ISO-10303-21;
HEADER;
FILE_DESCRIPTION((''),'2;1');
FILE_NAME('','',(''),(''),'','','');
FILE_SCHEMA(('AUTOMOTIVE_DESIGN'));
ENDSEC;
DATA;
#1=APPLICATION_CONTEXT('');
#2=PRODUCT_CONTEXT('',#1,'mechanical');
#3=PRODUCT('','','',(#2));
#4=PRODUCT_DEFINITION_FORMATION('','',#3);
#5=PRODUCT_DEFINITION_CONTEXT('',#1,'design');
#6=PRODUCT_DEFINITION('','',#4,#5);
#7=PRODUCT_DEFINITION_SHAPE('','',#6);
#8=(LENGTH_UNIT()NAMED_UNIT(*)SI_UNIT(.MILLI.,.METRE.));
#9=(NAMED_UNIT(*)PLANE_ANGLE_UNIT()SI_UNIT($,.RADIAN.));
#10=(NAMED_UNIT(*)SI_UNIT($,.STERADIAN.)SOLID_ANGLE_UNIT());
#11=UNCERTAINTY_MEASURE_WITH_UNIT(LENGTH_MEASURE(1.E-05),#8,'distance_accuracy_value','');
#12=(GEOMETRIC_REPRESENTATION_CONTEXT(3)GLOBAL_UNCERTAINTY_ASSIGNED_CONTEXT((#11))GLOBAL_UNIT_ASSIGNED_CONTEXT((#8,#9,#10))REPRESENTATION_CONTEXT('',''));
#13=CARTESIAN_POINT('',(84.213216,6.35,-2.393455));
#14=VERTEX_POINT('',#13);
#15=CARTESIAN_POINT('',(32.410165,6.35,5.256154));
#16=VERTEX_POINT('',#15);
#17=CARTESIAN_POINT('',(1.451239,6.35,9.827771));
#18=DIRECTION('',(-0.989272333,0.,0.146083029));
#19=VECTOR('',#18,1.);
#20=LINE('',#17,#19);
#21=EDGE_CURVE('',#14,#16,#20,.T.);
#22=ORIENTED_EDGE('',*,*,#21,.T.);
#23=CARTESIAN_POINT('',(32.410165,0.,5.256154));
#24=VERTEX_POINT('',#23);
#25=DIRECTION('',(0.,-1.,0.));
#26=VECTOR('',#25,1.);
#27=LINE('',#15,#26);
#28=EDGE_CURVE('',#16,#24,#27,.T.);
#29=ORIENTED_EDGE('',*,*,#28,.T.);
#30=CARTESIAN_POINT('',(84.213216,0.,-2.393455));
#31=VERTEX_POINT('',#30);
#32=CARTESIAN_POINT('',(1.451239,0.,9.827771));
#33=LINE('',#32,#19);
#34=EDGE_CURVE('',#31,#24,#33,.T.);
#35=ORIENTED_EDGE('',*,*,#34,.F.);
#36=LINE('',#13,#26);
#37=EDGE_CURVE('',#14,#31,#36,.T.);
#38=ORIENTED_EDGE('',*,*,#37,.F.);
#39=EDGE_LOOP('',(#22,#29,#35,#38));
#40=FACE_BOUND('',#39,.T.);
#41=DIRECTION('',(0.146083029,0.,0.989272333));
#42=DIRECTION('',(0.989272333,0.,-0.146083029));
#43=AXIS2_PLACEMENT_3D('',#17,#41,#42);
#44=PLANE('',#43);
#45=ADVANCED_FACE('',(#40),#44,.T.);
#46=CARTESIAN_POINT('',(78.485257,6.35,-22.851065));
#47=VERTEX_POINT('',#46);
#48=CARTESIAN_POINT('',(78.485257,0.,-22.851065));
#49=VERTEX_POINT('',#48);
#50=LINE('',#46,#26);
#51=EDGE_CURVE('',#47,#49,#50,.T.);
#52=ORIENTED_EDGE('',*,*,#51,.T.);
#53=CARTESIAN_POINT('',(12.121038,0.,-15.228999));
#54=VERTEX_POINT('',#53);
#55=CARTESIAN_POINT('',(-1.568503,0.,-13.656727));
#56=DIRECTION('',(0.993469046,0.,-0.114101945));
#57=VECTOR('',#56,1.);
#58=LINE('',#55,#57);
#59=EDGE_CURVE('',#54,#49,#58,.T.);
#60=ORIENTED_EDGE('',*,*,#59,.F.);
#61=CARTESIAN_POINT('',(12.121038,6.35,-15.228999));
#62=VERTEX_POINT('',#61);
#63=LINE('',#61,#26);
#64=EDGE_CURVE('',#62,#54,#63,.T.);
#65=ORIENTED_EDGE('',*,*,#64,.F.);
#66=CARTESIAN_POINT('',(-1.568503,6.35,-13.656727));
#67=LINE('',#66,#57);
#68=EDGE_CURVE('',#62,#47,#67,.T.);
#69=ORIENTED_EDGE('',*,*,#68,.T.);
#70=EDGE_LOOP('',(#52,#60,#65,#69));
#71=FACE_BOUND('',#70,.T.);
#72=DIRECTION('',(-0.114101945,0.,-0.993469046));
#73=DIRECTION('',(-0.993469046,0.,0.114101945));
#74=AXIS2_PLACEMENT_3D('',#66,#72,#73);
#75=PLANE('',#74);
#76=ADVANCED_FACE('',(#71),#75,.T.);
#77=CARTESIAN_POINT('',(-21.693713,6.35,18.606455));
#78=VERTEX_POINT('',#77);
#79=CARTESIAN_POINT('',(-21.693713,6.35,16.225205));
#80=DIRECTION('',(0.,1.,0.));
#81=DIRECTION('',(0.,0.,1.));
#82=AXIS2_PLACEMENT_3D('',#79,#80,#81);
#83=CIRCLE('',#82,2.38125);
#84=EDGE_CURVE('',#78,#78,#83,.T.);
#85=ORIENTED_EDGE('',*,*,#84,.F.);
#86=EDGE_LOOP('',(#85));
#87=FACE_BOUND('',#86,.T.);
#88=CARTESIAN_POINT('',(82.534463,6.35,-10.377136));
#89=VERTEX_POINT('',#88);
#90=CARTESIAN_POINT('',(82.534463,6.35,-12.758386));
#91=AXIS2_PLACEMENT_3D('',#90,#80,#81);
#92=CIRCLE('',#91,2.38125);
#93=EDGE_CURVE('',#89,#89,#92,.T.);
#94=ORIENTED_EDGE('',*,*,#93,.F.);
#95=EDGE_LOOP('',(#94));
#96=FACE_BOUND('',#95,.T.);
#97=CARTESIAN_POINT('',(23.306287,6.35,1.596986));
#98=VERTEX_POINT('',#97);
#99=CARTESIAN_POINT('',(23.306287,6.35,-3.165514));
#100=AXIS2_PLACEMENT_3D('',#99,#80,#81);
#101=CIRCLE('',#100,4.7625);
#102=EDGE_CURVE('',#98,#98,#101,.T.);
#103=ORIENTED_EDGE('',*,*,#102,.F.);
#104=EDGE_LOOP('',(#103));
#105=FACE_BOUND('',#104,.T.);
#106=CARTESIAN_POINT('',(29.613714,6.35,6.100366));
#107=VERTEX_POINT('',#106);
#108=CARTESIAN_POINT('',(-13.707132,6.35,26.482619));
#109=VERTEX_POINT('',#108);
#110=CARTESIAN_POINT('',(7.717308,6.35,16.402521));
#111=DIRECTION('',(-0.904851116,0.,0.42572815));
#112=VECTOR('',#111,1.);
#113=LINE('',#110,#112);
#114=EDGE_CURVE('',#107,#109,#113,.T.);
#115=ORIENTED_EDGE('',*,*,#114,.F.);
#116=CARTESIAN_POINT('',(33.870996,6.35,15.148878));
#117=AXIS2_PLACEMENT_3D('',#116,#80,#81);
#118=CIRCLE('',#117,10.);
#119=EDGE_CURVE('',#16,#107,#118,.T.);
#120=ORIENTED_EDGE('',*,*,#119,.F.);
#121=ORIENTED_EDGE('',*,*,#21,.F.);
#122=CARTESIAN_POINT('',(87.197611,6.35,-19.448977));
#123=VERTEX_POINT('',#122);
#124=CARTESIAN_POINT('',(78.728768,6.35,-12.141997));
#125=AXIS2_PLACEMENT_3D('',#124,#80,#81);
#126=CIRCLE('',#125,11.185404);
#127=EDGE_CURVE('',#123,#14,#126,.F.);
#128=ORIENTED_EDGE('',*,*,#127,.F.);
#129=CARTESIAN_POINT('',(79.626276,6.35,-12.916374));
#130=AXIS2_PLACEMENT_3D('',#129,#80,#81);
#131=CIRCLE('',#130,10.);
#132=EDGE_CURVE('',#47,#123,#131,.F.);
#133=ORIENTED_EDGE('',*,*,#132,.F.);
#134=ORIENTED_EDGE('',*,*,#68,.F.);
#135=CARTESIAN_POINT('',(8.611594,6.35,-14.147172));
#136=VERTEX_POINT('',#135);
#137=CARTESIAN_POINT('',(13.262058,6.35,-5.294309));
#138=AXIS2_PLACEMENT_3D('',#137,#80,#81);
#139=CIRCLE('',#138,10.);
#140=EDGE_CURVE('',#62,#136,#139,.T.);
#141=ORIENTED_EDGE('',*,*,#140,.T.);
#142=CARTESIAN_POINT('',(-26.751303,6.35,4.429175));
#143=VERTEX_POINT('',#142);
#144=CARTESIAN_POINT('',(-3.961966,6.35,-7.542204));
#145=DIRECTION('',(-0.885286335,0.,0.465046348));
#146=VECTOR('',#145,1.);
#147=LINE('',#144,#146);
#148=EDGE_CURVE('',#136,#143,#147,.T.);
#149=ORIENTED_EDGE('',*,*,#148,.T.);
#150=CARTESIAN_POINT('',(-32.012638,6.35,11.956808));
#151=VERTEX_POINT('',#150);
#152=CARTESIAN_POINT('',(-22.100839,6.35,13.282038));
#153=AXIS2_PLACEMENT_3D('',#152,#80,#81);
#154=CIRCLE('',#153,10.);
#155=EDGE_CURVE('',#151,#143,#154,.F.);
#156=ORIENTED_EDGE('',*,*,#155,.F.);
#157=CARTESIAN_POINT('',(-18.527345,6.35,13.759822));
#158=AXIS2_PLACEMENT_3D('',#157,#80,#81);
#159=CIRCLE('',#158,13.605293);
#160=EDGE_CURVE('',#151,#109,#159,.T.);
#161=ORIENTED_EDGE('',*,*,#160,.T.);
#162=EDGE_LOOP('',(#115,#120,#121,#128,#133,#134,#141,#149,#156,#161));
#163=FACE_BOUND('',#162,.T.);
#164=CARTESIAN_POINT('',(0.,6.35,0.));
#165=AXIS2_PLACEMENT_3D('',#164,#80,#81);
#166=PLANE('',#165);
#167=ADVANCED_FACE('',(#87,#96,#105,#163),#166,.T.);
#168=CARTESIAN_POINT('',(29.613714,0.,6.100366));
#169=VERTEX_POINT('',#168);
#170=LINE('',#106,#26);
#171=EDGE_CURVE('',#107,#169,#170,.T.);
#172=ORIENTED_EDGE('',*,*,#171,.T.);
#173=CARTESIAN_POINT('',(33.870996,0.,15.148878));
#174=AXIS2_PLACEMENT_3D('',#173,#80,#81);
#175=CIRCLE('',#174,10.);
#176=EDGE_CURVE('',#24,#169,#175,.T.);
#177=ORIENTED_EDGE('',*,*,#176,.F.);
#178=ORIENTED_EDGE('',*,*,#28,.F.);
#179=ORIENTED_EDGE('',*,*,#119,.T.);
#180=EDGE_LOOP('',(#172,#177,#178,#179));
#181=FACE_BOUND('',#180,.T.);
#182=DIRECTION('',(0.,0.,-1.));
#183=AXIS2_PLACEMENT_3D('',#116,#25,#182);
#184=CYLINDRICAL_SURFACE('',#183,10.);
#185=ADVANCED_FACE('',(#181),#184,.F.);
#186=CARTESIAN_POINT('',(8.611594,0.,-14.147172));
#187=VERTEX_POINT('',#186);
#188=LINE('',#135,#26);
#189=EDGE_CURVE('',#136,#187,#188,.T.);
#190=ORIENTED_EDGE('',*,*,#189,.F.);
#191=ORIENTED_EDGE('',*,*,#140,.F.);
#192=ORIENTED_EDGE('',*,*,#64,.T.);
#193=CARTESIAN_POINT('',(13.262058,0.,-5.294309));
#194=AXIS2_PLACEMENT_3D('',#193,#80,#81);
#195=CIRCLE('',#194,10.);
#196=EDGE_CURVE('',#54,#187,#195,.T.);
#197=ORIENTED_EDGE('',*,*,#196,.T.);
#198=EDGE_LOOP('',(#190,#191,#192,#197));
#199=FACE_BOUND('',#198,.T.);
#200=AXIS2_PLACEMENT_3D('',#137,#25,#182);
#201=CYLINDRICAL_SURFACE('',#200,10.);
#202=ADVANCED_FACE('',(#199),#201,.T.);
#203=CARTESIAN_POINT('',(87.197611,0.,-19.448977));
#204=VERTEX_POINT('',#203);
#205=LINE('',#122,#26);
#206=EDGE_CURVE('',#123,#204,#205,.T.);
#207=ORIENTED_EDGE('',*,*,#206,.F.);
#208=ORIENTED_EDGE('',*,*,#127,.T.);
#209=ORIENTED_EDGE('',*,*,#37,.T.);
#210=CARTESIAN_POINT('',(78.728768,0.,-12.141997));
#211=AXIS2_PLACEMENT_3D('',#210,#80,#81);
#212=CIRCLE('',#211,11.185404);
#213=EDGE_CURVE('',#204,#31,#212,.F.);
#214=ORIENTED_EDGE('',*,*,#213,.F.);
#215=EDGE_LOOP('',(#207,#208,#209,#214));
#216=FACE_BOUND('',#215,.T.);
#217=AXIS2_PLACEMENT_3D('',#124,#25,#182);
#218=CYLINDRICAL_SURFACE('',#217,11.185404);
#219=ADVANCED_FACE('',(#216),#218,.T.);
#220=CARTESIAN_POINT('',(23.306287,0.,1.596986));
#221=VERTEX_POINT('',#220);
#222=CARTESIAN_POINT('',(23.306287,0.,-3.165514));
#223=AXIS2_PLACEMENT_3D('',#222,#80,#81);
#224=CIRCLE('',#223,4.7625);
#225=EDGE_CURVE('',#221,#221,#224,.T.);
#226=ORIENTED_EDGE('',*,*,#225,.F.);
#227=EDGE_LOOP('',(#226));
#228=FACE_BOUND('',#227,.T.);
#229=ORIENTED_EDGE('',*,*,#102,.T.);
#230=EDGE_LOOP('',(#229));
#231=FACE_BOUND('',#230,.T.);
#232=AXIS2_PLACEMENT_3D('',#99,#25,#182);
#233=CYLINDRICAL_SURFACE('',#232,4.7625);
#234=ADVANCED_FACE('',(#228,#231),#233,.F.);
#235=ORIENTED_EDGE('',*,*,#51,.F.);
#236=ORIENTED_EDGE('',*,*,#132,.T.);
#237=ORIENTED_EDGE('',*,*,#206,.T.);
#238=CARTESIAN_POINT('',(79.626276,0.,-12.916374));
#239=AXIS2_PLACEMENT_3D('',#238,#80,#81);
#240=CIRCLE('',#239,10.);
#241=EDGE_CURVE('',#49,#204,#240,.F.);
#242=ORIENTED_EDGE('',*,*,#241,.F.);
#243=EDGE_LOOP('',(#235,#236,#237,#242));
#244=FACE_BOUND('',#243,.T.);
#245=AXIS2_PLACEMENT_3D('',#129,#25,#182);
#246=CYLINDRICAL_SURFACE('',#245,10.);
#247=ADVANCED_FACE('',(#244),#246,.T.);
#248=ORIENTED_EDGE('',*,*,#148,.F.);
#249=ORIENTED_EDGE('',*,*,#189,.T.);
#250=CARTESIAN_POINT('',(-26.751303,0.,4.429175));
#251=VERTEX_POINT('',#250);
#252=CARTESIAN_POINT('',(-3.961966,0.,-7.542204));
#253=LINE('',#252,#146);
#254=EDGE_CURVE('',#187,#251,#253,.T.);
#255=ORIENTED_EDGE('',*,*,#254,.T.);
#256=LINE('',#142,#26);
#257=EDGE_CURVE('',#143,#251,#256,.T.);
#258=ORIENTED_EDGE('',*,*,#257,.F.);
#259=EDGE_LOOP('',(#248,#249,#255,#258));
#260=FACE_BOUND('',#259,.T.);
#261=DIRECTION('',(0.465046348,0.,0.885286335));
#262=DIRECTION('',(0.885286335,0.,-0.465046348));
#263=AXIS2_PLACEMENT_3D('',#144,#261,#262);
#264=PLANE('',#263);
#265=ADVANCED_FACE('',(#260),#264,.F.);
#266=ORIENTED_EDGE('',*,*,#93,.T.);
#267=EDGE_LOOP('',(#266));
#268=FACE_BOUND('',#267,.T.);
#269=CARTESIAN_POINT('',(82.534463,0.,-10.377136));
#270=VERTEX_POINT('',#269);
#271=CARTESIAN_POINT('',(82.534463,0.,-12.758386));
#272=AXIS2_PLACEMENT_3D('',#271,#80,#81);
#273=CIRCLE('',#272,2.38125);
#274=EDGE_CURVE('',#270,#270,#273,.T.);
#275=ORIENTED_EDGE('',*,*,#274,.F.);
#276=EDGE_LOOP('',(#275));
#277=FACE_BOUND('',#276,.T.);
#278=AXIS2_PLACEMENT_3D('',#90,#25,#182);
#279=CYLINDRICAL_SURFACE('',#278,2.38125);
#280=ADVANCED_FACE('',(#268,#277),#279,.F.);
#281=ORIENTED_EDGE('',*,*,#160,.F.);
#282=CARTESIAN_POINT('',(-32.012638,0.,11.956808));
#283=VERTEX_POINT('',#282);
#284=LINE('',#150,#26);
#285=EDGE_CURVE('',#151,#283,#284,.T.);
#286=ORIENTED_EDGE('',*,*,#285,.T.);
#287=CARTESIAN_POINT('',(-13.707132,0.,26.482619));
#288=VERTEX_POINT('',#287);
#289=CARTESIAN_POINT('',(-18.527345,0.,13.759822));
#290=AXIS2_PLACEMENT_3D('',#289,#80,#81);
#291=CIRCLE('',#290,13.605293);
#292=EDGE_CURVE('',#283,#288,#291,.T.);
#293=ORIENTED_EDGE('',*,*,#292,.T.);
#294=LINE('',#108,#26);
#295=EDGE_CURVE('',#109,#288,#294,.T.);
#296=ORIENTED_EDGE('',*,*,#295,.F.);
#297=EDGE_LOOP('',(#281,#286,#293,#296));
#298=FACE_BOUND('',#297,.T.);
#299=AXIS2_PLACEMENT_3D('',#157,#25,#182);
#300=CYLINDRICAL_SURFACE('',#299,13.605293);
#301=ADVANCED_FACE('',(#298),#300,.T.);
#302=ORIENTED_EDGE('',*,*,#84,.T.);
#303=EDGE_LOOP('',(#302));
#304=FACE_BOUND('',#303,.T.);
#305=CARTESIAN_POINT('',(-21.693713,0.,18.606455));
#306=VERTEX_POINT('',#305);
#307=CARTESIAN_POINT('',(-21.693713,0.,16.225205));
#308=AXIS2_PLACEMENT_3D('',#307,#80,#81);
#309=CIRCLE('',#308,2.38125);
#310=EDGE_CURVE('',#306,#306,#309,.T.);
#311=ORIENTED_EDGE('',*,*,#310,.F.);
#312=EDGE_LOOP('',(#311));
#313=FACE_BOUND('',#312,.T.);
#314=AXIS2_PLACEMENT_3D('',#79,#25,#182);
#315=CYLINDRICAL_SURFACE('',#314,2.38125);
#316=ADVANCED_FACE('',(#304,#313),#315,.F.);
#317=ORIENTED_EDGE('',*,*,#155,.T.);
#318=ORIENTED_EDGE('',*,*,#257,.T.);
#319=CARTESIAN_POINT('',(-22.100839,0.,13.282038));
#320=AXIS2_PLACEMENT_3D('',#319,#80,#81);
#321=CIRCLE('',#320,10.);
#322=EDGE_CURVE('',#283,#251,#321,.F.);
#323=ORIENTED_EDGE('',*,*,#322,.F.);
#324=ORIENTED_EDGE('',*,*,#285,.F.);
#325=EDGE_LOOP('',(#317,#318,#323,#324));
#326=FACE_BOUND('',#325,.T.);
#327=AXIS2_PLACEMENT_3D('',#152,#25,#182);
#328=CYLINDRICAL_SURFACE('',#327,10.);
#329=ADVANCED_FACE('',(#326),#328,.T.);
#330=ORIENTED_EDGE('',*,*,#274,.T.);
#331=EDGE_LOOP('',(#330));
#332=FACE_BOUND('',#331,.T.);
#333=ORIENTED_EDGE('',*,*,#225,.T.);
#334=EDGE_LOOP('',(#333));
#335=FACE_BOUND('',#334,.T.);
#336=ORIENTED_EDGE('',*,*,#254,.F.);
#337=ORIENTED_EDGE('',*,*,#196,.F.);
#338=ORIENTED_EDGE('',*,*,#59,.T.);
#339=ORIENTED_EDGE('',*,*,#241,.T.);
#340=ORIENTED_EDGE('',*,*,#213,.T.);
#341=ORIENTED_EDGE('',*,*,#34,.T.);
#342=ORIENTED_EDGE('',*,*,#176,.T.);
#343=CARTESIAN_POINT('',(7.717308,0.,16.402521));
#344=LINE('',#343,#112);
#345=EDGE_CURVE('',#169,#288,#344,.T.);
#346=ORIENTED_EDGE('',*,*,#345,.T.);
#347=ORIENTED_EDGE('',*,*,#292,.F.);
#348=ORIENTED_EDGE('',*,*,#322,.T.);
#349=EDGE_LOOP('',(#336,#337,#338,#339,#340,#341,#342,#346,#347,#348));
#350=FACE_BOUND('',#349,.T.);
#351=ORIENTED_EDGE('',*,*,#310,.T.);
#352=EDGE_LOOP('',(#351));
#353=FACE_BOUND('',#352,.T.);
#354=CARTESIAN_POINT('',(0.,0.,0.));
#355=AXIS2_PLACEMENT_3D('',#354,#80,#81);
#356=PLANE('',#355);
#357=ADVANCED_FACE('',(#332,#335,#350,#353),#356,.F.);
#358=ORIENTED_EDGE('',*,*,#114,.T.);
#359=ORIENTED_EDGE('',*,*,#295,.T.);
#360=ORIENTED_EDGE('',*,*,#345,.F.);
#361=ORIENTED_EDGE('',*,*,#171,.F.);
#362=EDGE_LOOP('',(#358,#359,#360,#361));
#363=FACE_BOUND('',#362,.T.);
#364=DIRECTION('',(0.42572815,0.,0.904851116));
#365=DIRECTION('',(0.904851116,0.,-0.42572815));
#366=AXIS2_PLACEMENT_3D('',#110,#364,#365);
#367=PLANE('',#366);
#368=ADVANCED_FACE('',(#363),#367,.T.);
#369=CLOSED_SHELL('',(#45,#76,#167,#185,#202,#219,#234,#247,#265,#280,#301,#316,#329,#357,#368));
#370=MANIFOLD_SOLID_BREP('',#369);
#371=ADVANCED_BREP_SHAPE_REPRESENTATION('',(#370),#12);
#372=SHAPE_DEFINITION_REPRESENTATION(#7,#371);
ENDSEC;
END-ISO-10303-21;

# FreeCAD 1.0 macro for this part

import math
import FreeCAD as App
import Part
import Sketcher

V = App.Vector
Q = App.Units.Quantity

doc = App.newDocument("Part")
body = doc.addObject("PartDesign::Body", "Body")

# Sketch on XZ plane
sketch1 = body.newObject("Sketcher::SketchObject", "Sketch")
sketch1.AttachmentSupport = (doc.getObject("XZ_Plane"), [""])
sketch1.MapMode = "FlatFace"
sketch1.addGeometry([
    Part.LineSegment(V(32.410165, 5.256154, 0), V(84.213216, -2.393455, 0)),  # 0
    Part.ArcOfCircle(Part.Circle(V(78.728768, -12.141997, 0), V(0, 0, 1), 11.185404), math.radians(-40.787866), math.radians(60.638261)),  # 1
    Part.ArcOfCircle(Part.Circle(V(79.626276, -12.916374, 0), V(0, 0, 1), 10), math.radians(-96.551829), math.radians(-40.787866)),  # 2
    Part.LineSegment(V(78.485257, -22.851065, 0), V(12.121038, -15.228999, 0)),  # 3
    Part.ArcOfCircle(Part.Circle(V(13.262058, -5.294309, 0), V(0, 0, 1), 10), math.radians(-117.713222), math.radians(-96.551829)),  # 4
    Part.LineSegment(V(8.611594, -14.147172, 0), V(-26.751303, 4.429175, 0)),  # 5
    Part.ArcOfCircle(Part.Circle(V(-22.100839, 13.282038, 0), V(0, 0, 1), 10), math.radians(-172.384589), math.radians(-117.713222)),  # 6
    Part.ArcOfCircle(Part.Circle(V(-18.527345, 13.759822, 0), V(0, 0, 1), 13.605293), math.radians(69.250093), math.radians(187.615411)),  # 7
    Part.LineSegment(V(-13.707132, 26.482619, 0), V(29.613714, 6.100366, 0)),  # 8
    Part.ArcOfCircle(Part.Circle(V(33.870996, 15.148878, 0), V(0, 0, 1), 10), math.radians(-115.196762), math.radians(-98.4)),  # 9
    Part.Circle(V(-21.693713, 16.225205, 0), V(0, 0, 1), 2.38125),  # 10
    Part.Circle(V(82.534463, -12.758386, 0), V(0, 0, 1), 2.38125),  # 11
    Part.Circle(V(23.306287, -3.165514, 0), V(0, 0, 1), 4.7625),  # 12
], False)
sketch1.addConstraint([
    Sketcher.Constraint("Coincident", 0, 2, 1, 2),
    Sketcher.Constraint("Coincident", 1, 1, 2, 2),
    Sketcher.Constraint("Coincident", 2, 1, 3, 1),
    Sketcher.Constraint("Coincident", 3, 2, 4, 2),
    Sketcher.Constraint("Coincident", 4, 1, 5, 1),
    Sketcher.Constraint("Coincident", 5, 2, 6, 2),
    Sketcher.Constraint("Coincident", 6, 1, 7, 2),
    Sketcher.Constraint("Coincident", 7, 1, 8, 1),
    Sketcher.Constraint("Coincident", 8, 2, 9, 1),
    Sketcher.Constraint("Coincident", 9, 2, 0, 1),
    Sketcher.Constraint("Diameter", 10, Q("0.1875 in")),
    Sketcher.Constraint("Diameter", 11, Q("0.1875 in")),
    Sketcher.Constraint("Diameter", 12, Q("0.375 in")),
    Sketcher.Constraint("Radius", 2, 10.0),
    Sketcher.Constraint("Radius", 4, 10.0),
    Sketcher.Constraint("Radius", 6, 10.0),
    Sketcher.Constraint("Radius", 9, 10.0),
    Sketcher.Constraint("Radius", 1, 11.185404),
    Sketcher.Constraint("Radius", 7, 13.605293),
    Sketcher.Constraint("DistanceY", 3, 2, -1, 1, 15.228999),
    Sketcher.Constraint("DistanceX", 10, 3, 12, 3, 45.0),
    Sketcher.Constraint("DistanceX", 4, 1, 9, 3, 25.259401),
    Sketcher.Constraint("DistanceX", 6, 1, 6, 3, 9.911799),
    Sketcher.Constraint("Distance", 3, 66.80049),
    Sketcher.Constraint("Distance", 5, 39.945151),
    Sketcher.Constraint("DistanceY", 4, 3, -1, 1, 5.294309),
    Sketcher.Constraint("DistanceX", 6, 3, -1, 1, 22.100839),
    Sketcher.Constraint("DistanceY", -1, 1, 6, 3, 13.282038),
    Sketcher.Constraint("DistanceX", -1, 1, 1, 1, 87.197611),
    Sketcher.Constraint("DistanceX", -1, 1, 3, 2, 12.121038),
    Sketcher.Constraint("DistanceY", 4, 1, -1, 1, 14.147172),
    Sketcher.Constraint("DistanceY", -1, 1, 7, 1, 26.482619),
    Sketcher.Constraint("DistanceX", 1, 3, 2, 3, 0.897509),
    Sketcher.Constraint("DistanceX", 4, 3, 1, 3, 65.46671),
    Sketcher.Constraint("DistanceY", 1, 3, 4, 3, 6.847689),
    Sketcher.Constraint("DistanceY", 4, 3, 7, 3, 19.054131),
    Sketcher.Constraint("DistanceY", 2, 3, 9, 3, 28.065252),
    Sketcher.Constraint("DistanceX", 10, 3, 4, 3, 34.95577),
    Sketcher.Constraint("DistanceY", 2, 3, 11, 3, 0.157989),
    Sketcher.Constraint("DistanceX", 7, 3, 11, 3, 101.061808),
    Sketcher.Constraint("DistanceY", 12, 3, 9, 3, 18.314392),
    Sketcher.Constraint("DistanceY", 12, 3, 10, 3, 19.390719),
    Sketcher.Constraint("DistanceY", 11, 3, 0, 2, 10.364931),
    Sketcher.Constraint("DistanceX", 8, 2, 9, 3, 4.257281),
    Sketcher.Constraint("DistanceX", 8, 2, 9, 2, 2.796451),
])
pad1 = body.newObject("PartDesign::Pad", "Pad")
pad1.Profile = sketch1
pad1.Length = Q("0.25 in")
pad1.Reversed = True

doc.recompute()
